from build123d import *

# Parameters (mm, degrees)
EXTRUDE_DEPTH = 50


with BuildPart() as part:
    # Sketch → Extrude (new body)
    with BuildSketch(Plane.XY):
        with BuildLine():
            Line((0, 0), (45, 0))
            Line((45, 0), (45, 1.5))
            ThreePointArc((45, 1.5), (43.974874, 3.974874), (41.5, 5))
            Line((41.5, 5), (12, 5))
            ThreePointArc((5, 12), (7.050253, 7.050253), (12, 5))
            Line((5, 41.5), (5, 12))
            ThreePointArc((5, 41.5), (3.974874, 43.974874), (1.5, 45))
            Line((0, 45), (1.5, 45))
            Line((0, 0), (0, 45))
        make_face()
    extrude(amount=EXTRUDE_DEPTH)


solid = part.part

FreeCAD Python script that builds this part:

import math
import FreeCAD as App
import Part
import Sketcher

V = App.Vector
Q = App.Units.Quantity

doc = App.newDocument("Part")
params = doc.addObject("Spreadsheet::Sheet", "Params")
for row, (alias, value) in enumerate([
    ("sketch1_radius", "7.000002 mm"),
    ("sketch1_radius2", "3.499999 mm"),
    ("sketch1_width", "45 mm"),
    ("sketch1_width2", "29.5 mm"),
    ("pad1_length", "50 mm"),
], start=1):
    params.set(f"A{row}", alias)
    params.set(f"B{row}", "=" + value)
    params.setAlias(f"B{row}", alias)

body = doc.addObject("PartDesign::Body", "Body")

# Sketch on XY plane
sketch1 = doc.addObject("Sketcher::SketchObject", "Sketch")
body.addObject(sketch1)
sketch1.AttachmentSupport = (doc.XY_Plane, [""])
sketch1.MapMode = "FlatFace"
sketch1.addGeometry([
    Part.LineSegment(V(0, 0, 0), V(45, 0, 0)),  # 0
    Part.LineSegment(V(45, 0, 0), V(45, 1.5, 0)),  # 1
    Part.ArcOfCircle(Part.Circle(V(41.500001, 1.500001, 0), V(0, 0, 1), 3.499999), math.radians(-0.000015), math.radians(90.000015)),  # 2
    Part.LineSegment(V(41.5, 5, 0), V(12, 5, 0)),  # 3
    Part.ArcOfCircle(Part.Circle(V(12.000002, 12.000002, 0), V(0, 0, 1), 7.000002), math.radians(-179.999987), math.radians(-90.000013)),  # 4
    Part.LineSegment(V(5, 12, 0), V(5, 41.5, 0)),  # 5
    Part.ArcOfCircle(Part.Circle(V(1.500001, 41.500001, 0), V(0, 0, 1), 3.499999), math.radians(-0.000015), math.radians(90.000015)),  # 6
    Part.LineSegment(V(1.5, 45, 0), V(0, 45, 0)),  # 7
    Part.LineSegment(V(0, 45, 0), V(0, 0, 0)),  # 8
], False)
sketch1.addConstraint([
    Sketcher.Constraint("Coincident", 0, 2, 1, 1),
    Sketcher.Constraint("Tangent", 1, 2, 2, 1),
    Sketcher.Constraint("Tangent", 2, 2, 3, 1),
    Sketcher.Constraint("Tangent", 3, 2, 4, 2),
    Sketcher.Constraint("Tangent", 4, 1, 5, 1),
    Sketcher.Constraint("Tangent", 5, 2, 6, 1),
    Sketcher.Constraint("Tangent", 6, 2, 7, 1),
    Sketcher.Constraint("Coincident", 7, 2, 8, 1),
    Sketcher.Constraint("Coincident", 8, 2, 0, 1),
    Sketcher.Constraint("Horizontal", 0),
    Sketcher.Constraint("Vertical", 1),
    Sketcher.Constraint("Horizontal", 3),
    Sketcher.Constraint("Vertical", 5),
    Sketcher.Constraint("Horizontal", 7),
    Sketcher.Constraint("Vertical", 8),
    Sketcher.Constraint("Coincident", 8, 2, -1, 1),
    Sketcher.Constraint("Equal", 2, 6),
    Sketcher.Constraint("Equal", 7, 1),
    Sketcher.Constraint("Equal", 3, 5),
    Sketcher.Constraint("Radius", 4, Q("7.000002 mm")),
    Sketcher.Constraint("Radius", 2, Q("3.499999 mm")),
    Sketcher.Constraint("DistanceX", 0, 1, 0, 2, Q("45 mm")),
    Sketcher.Constraint("DistanceX", 3, 2, 3, 1, Q("29.5 mm")),
])
sketch1.setExpression("Constraints[19]", "Params.sketch1_radius")
sketch1.setExpression("Constraints[20]", "Params.sketch1_radius2")
sketch1.setExpression("Constraints[21]", "Params.sketch1_width")
sketch1.setExpression("Constraints[22]", "Params.sketch1_width2")
pad1 = doc.addObject("PartDesign::Pad", "Pad")
body.addObject(pad1)
pad1.Profile = sketch1
pad1.setExpression("Length", "Params.pad1_length")

doc.recompute()
